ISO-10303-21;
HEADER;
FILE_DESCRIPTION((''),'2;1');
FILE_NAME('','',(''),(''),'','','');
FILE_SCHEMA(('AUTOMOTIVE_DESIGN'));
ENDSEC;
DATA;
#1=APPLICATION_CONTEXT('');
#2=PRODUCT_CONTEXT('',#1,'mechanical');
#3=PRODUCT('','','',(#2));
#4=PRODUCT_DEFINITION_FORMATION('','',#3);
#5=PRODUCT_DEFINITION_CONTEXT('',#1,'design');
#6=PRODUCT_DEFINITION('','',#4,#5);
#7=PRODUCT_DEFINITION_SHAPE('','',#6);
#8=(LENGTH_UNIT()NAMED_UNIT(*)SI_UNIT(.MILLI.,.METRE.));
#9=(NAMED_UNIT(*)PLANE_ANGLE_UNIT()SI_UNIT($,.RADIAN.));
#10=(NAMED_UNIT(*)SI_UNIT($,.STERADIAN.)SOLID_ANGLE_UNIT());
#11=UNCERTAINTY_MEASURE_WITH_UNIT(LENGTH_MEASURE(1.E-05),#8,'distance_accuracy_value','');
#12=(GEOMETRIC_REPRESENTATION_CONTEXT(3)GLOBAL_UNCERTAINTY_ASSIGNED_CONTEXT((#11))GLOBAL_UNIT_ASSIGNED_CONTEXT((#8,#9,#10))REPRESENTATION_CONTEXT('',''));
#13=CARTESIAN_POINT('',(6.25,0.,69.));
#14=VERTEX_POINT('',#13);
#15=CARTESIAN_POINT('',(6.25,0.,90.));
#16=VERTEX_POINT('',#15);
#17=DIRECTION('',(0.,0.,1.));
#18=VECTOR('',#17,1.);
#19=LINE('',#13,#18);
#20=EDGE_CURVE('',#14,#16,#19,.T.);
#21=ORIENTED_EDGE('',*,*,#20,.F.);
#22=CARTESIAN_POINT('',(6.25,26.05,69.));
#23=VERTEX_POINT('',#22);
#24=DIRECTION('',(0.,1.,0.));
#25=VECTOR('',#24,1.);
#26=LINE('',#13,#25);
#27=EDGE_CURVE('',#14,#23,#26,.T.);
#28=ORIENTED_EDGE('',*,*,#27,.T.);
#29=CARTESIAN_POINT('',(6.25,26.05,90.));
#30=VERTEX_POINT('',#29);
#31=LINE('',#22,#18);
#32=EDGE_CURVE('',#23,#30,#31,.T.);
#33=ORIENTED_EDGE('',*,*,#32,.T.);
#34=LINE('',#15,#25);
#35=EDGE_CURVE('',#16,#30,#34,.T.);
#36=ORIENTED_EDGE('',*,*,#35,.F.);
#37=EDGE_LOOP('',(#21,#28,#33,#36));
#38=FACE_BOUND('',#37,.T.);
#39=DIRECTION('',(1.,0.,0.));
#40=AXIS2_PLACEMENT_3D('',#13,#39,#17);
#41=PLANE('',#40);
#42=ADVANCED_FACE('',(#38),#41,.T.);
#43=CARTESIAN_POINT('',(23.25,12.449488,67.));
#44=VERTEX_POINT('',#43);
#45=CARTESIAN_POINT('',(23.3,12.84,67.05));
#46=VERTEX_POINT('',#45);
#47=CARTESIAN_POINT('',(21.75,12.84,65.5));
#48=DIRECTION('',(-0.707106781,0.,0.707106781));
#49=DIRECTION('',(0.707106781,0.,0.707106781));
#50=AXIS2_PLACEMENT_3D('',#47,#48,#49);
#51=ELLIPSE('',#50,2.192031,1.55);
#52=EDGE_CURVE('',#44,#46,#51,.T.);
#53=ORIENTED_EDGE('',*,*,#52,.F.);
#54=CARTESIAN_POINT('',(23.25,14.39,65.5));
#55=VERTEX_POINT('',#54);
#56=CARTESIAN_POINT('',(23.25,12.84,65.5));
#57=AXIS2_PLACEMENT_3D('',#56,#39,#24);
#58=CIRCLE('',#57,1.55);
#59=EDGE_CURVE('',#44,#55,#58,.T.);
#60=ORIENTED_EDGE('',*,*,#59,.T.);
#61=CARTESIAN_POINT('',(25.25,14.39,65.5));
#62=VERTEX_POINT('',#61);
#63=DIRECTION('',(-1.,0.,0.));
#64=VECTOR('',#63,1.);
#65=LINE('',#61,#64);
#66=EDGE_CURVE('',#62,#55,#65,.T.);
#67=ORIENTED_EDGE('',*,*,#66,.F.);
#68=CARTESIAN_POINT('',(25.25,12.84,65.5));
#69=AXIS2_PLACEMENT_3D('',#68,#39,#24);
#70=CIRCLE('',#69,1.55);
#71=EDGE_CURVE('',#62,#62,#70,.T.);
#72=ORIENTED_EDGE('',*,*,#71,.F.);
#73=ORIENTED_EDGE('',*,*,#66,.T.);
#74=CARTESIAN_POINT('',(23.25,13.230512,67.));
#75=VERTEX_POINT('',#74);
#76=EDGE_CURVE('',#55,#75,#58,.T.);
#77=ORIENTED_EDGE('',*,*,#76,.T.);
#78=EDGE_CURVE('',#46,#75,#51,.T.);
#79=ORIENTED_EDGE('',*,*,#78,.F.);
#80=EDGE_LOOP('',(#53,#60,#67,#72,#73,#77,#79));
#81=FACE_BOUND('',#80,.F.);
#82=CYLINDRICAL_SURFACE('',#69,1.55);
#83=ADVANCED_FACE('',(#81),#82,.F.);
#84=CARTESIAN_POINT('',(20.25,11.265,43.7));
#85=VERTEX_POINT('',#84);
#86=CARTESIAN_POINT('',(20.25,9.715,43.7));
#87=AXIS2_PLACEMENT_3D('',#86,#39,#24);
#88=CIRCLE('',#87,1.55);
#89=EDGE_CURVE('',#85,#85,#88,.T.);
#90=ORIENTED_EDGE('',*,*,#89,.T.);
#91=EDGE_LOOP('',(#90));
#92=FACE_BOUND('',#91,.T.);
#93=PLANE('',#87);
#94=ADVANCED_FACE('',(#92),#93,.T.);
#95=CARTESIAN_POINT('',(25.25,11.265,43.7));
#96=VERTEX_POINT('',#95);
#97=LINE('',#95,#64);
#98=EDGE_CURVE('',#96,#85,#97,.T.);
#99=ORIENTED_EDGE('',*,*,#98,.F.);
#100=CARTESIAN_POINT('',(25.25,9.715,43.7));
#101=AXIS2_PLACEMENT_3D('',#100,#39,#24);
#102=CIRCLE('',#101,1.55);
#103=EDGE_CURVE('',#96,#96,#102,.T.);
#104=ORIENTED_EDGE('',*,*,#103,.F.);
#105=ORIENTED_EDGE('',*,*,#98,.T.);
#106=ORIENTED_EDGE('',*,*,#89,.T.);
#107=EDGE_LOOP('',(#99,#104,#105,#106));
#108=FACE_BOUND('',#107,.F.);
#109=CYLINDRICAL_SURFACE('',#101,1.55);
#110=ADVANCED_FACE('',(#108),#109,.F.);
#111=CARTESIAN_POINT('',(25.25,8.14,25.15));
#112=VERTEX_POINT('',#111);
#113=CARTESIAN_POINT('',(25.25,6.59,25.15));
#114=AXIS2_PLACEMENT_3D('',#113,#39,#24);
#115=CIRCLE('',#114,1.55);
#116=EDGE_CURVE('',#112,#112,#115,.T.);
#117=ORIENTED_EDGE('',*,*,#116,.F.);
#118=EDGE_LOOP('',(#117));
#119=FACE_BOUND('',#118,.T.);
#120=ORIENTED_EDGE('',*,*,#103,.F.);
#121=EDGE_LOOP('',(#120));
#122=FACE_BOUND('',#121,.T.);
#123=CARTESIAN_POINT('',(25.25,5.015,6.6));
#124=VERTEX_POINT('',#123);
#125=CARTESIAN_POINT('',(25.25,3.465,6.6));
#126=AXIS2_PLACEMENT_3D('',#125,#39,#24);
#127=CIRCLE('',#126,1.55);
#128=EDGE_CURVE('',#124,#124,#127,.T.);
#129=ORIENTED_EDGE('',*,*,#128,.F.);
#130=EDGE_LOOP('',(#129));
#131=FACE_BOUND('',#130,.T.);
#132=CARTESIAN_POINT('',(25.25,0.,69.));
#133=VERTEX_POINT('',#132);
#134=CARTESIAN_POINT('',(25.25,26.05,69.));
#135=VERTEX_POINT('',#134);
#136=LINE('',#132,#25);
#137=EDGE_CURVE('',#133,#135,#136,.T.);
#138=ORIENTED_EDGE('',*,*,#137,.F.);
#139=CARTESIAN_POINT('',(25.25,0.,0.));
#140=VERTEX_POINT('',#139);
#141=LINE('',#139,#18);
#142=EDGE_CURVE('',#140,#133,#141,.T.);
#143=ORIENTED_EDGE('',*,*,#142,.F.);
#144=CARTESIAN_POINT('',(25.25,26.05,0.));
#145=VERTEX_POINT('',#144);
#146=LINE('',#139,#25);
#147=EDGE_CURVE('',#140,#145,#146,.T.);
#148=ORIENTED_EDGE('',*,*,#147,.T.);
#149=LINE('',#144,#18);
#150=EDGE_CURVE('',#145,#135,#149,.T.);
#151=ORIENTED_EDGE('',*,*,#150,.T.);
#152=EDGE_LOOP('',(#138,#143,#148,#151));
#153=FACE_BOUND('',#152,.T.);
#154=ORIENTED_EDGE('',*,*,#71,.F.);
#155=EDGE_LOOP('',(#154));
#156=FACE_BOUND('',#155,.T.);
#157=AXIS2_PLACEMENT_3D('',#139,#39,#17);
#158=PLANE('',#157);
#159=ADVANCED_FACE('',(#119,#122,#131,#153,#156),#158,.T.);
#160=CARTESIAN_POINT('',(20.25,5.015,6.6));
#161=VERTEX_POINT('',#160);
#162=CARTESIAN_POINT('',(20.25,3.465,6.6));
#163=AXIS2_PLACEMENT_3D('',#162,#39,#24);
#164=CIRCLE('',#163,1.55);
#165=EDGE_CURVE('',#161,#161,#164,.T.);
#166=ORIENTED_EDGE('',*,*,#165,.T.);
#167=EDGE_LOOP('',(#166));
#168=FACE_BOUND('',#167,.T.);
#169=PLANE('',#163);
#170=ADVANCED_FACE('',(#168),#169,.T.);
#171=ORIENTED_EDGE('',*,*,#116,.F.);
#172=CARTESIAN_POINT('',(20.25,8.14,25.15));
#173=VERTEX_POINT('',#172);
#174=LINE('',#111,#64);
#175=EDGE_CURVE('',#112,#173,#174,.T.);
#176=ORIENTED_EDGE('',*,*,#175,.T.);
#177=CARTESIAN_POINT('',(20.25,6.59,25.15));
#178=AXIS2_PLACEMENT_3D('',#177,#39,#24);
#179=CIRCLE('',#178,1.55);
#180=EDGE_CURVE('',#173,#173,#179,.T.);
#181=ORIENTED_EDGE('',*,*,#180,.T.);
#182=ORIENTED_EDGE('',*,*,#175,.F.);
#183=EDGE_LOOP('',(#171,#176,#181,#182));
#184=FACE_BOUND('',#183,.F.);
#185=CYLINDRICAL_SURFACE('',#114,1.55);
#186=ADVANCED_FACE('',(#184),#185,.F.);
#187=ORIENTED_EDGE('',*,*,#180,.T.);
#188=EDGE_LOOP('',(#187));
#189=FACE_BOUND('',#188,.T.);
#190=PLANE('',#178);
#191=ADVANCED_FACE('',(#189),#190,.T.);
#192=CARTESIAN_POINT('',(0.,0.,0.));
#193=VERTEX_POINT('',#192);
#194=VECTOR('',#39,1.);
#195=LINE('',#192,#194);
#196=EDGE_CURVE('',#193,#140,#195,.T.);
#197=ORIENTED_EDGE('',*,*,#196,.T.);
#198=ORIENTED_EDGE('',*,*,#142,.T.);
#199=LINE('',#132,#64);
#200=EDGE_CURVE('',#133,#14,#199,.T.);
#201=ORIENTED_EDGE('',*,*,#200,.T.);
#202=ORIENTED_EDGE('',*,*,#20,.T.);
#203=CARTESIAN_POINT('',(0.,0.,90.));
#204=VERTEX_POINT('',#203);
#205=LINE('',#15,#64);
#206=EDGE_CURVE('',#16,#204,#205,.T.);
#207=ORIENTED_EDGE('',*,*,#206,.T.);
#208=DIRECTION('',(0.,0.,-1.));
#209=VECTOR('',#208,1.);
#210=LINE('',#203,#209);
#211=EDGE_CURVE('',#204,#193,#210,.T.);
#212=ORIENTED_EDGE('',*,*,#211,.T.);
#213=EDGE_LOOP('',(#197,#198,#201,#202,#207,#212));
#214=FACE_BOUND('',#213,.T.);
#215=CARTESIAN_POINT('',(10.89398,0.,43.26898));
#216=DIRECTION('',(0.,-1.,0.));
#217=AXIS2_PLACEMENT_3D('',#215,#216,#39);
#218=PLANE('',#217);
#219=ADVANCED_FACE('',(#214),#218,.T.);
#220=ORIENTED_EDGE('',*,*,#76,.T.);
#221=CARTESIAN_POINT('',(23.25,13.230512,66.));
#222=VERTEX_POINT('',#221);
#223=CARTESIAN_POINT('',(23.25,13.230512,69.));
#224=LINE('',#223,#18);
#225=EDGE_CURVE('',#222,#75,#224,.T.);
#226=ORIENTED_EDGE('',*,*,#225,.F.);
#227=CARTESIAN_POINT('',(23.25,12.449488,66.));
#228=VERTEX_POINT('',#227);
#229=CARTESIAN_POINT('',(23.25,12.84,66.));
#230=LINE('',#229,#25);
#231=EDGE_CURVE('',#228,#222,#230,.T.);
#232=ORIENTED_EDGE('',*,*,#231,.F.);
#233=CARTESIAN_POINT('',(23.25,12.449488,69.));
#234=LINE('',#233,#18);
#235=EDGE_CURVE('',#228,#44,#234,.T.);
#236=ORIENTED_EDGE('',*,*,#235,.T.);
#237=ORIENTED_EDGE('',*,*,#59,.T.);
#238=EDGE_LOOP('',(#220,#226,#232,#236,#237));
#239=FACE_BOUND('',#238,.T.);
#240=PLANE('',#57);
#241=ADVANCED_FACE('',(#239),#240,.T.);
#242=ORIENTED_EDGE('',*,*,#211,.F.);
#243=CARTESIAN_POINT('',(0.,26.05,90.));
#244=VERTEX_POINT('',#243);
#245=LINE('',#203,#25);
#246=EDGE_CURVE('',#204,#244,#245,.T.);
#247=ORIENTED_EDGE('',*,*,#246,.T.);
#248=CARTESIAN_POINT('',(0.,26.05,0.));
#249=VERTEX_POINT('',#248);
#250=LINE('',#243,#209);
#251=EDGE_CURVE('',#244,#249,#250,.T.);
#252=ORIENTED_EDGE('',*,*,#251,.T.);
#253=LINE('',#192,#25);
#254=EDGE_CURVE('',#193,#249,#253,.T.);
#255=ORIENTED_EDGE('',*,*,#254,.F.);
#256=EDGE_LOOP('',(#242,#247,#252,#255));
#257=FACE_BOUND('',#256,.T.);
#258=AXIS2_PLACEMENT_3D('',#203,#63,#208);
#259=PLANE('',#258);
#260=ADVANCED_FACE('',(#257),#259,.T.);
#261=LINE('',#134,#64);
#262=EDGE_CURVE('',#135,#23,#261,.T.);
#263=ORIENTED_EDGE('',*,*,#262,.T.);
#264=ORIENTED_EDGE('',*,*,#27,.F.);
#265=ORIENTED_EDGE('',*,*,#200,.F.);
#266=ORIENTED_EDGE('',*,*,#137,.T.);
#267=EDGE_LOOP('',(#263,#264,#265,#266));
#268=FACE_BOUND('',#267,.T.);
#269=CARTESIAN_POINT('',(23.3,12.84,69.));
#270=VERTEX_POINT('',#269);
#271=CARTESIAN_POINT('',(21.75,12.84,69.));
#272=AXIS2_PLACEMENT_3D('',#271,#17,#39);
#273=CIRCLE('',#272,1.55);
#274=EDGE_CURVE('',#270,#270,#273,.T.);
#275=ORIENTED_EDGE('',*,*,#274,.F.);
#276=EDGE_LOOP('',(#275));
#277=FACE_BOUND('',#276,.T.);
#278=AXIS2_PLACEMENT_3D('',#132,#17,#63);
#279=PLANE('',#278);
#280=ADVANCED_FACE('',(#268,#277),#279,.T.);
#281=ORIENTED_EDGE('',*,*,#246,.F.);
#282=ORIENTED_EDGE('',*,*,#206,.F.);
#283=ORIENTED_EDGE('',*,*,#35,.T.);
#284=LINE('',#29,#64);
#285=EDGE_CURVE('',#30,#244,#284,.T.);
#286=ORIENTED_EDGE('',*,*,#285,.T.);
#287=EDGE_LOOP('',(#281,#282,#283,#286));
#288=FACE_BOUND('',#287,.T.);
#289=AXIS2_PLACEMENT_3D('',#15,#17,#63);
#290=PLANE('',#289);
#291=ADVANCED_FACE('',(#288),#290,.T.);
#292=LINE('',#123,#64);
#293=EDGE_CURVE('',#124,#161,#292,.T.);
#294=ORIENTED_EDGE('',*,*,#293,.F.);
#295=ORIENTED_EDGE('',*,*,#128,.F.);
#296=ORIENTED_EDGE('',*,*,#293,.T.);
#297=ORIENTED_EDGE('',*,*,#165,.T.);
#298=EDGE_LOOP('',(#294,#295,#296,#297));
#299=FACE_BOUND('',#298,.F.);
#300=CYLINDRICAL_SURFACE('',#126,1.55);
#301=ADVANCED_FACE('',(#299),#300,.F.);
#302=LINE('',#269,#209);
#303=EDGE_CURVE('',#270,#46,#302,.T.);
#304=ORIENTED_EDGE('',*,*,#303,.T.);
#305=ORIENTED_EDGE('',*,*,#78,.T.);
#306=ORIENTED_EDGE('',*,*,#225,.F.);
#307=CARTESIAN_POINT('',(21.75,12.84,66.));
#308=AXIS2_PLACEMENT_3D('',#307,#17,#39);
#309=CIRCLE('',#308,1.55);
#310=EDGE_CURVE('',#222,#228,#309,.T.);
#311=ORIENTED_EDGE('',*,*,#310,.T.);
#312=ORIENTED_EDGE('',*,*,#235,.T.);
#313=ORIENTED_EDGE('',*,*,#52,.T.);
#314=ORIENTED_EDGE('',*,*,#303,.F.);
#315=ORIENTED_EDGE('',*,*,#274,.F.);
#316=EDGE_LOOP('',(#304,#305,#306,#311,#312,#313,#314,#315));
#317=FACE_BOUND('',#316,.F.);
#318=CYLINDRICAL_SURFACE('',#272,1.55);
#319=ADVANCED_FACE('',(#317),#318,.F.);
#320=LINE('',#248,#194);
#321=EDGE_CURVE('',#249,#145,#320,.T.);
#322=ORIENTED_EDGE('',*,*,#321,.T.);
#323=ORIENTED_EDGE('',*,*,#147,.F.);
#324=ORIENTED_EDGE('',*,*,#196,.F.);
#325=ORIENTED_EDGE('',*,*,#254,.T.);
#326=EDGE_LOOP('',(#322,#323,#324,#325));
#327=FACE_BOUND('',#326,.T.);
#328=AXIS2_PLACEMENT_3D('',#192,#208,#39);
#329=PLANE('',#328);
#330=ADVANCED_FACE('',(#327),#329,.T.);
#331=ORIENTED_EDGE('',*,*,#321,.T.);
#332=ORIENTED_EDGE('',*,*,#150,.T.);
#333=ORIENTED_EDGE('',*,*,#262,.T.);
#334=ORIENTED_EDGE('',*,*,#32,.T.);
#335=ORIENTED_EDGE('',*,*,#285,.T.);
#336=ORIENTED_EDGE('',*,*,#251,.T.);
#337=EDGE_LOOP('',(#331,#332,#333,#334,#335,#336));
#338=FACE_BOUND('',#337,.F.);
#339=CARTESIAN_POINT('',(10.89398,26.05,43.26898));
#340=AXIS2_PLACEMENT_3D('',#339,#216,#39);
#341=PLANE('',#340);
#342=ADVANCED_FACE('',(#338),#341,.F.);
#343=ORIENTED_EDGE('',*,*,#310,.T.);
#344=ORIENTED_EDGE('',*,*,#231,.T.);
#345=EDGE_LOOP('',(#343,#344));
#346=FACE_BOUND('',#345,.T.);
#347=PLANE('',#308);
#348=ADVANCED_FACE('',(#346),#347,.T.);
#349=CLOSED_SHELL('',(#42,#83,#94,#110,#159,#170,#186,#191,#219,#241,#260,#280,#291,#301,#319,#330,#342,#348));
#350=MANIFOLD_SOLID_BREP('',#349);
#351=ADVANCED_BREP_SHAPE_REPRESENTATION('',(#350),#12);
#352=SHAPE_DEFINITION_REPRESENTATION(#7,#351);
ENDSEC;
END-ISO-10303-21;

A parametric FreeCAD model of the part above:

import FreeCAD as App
import Part
import Sketcher
Q = App.Units.Quantity


def add_polygon(sketch, points):
    """Adds a closed chain of lines whose ends are joined by coincident constraints."""
    first, n = sketch.GeometryCount, len(points)
    for a, b in zip(points, points[1:] + points[:1]):
        sketch.addGeometry(Part.LineSegment(App.Vector(*a, 0), App.Vector(*b, 0)), False)
    for i in range(n):
        sketch.addConstraint(Sketcher.Constraint("Coincident", first + i, 2, first + (i + 1) % n, 1))

doc = App.newDocument("Part")
body = doc.addObject("PartDesign::Body", "Body")

# Sketch on XZ plane
sketch1 = body.newObject("Sketcher::SketchObject", "Sketch")
sketch1.AttachmentSupport = (doc.getObject("XZ_Plane"), [""])
sketch1.MapMode = "FlatFace"
add_polygon(sketch1, [(0, 90), (0, 0), (25, 0), (25, 69), (6, 69), (6, 90)])  # lines 0-5
sketch1.addConstraint(Sketcher.Constraint("Vertical", 0))
sketch1.addConstraint(Sketcher.Constraint("Horizontal", 1))
sketch1.addConstraint(Sketcher.Constraint("Vertical", 2))
sketch1.addConstraint(Sketcher.Constraint("Horizontal", 3))
sketch1.addConstraint(Sketcher.Constraint("Vertical", 4))
sketch1.addConstraint(Sketcher.Constraint("Horizontal", 5))
sketch1.addConstraint(Sketcher.Constraint("Coincident", 0, 2, -1, 1))
sketch1.addConstraint(Sketcher.Constraint("DistanceX", 3, 2, 3, 1, Q("19 mm")))
sketch1.addConstraint(Sketcher.Constraint("DistanceY", 0, 2, 0, 1, Q("90 mm")))
sketch1.addConstraint(Sketcher.Constraint("DistanceY", 2, 1, 2, 2, Q("69 mm")))
sketch1.addConstraint(Sketcher.Constraint("DistanceX", 1, 1, 1, 2, Q("25.25 mm")))
pad1 = body.newObject("PartDesign::Pad", "Pad")
pad1.Profile = sketch1
pad1.Length = 26.05
pad1.Reversed = True

# Sketch on YZ plane
sketch2 = body.newObject("Sketcher::SketchObject", "Sketch001")
sketch2.AttachmentSupport = (doc.getObject("YZ_Plane"), [""])
sketch2.MapMode = "FlatFace"
sketch2.AttachmentOffset = App.Placement(App.Vector(0, 0, 25.25), App.Rotation())
sketch2.addGeometry(Part.Circle(App.Vector(9.7, 43.7, 0), App.Vector(0, 0, 1), 1.6), False)
sketch2.addGeometry(Part.Circle(App.Vector(6.6, 25.1, 0), App.Vector(0, 0, 1), 1.6), False)
sketch2.addGeometry(Part.Circle(App.Vector(3.5, 6.6, 0), App.Vector(0, 0, 1), 1.6), False)
sketch2.addConstraint(Sketcher.Constraint("Equal", 0, 1))
sketch2.addConstraint(Sketcher.Constraint("Equal", 1, 2))
sketch2.addConstraint(Sketcher.Constraint("Diameter", 0, Q("3.1 mm")))
sketch2.addConstraint(Sketcher.Constraint("DistanceY", -1, 1, 0, 3, Q("43.7 mm")))
sketch2.addConstraint(Sketcher.Constraint("DistanceY", -1, 1, 2, 3, Q("6.6 mm")))
sketch2.addConstraint(Sketcher.Constraint("DistanceX", -1, 1, 1, 3, Q("6.59 mm")))
sketch2.addConstraint(Sketcher.Constraint("DistanceY", -1, 1, 1, 3, Q("25.15 mm")))
sketch2.addConstraint(Sketcher.Constraint("DistanceX", 2, 3, 0, 3, Q("6.25 mm")))
sketch2.addConstraint(Sketcher.Constraint("DistanceX", -1, 1, 0, 3, Q("9.715 mm")))
pocket1 = body.newObject("PartDesign::Pocket", "Pocket")
pocket1.Profile = sketch2
pocket1.Length = 5

# Sketch on XY plane
sketch3 = body.newObject("Sketcher::SketchObject", "Sketch002")
sketch3.AttachmentSupport = (doc.getObject("XY_Plane"), [""])
sketch3.MapMode = "FlatFace"
sketch3.AttachmentOffset = App.Placement(App.Vector(0, 0, 69), App.Rotation())
sketch3.addGeometry(Part.Circle(App.Vector(21.8, 12.8, 0), App.Vector(0, 0, 1), 1.6), False)
sketch3.addConstraint(Sketcher.Constraint("Diameter", 0, Q("3.1 mm")))
sketch3.addConstraint(Sketcher.Constraint("DistanceX", -1, 1, 0, 3, Q("21.75 mm")))
sketch3.addConstraint(Sketcher.Constraint("DistanceY", -1, 1, 0, 3, Q("12.84 mm")))
pocket2 = body.newObject("PartDesign::Pocket", "Pocket001")
pocket2.Profile = sketch3
pocket2.Length = 3

# Sketch on YZ plane
sketch4 = body.newObject("Sketcher::SketchObject", "Sketch003")
sketch4.AttachmentSupport = (doc.getObject("YZ_Plane"), [""])
sketch4.MapMode = "FlatFace"
sketch4.AttachmentOffset = App.Placement(App.Vector(0, 0, 25.25), App.Rotation())
sketch4.addGeometry(Part.Circle(App.Vector(12.8, 65.5, 0), App.Vector(0, 0, 1), 1.6), False)
sketch4.addConstraint(Sketcher.Constraint("Diameter", 0, Q("3.1 mm")))
sketch4.addConstraint(Sketcher.Constraint("DistanceY", -1, 1, 0, 3, Q("65.5 mm")))
sketch4.addConstraint(Sketcher.Constraint("DistanceX", -1, 1, 0, 3, Q("12.84 mm")))
pocket3 = body.newObject("PartDesign::Pocket", "Pocket002")
pocket3.Profile = sketch4
pocket3.Length = 2

doc.recompute()
